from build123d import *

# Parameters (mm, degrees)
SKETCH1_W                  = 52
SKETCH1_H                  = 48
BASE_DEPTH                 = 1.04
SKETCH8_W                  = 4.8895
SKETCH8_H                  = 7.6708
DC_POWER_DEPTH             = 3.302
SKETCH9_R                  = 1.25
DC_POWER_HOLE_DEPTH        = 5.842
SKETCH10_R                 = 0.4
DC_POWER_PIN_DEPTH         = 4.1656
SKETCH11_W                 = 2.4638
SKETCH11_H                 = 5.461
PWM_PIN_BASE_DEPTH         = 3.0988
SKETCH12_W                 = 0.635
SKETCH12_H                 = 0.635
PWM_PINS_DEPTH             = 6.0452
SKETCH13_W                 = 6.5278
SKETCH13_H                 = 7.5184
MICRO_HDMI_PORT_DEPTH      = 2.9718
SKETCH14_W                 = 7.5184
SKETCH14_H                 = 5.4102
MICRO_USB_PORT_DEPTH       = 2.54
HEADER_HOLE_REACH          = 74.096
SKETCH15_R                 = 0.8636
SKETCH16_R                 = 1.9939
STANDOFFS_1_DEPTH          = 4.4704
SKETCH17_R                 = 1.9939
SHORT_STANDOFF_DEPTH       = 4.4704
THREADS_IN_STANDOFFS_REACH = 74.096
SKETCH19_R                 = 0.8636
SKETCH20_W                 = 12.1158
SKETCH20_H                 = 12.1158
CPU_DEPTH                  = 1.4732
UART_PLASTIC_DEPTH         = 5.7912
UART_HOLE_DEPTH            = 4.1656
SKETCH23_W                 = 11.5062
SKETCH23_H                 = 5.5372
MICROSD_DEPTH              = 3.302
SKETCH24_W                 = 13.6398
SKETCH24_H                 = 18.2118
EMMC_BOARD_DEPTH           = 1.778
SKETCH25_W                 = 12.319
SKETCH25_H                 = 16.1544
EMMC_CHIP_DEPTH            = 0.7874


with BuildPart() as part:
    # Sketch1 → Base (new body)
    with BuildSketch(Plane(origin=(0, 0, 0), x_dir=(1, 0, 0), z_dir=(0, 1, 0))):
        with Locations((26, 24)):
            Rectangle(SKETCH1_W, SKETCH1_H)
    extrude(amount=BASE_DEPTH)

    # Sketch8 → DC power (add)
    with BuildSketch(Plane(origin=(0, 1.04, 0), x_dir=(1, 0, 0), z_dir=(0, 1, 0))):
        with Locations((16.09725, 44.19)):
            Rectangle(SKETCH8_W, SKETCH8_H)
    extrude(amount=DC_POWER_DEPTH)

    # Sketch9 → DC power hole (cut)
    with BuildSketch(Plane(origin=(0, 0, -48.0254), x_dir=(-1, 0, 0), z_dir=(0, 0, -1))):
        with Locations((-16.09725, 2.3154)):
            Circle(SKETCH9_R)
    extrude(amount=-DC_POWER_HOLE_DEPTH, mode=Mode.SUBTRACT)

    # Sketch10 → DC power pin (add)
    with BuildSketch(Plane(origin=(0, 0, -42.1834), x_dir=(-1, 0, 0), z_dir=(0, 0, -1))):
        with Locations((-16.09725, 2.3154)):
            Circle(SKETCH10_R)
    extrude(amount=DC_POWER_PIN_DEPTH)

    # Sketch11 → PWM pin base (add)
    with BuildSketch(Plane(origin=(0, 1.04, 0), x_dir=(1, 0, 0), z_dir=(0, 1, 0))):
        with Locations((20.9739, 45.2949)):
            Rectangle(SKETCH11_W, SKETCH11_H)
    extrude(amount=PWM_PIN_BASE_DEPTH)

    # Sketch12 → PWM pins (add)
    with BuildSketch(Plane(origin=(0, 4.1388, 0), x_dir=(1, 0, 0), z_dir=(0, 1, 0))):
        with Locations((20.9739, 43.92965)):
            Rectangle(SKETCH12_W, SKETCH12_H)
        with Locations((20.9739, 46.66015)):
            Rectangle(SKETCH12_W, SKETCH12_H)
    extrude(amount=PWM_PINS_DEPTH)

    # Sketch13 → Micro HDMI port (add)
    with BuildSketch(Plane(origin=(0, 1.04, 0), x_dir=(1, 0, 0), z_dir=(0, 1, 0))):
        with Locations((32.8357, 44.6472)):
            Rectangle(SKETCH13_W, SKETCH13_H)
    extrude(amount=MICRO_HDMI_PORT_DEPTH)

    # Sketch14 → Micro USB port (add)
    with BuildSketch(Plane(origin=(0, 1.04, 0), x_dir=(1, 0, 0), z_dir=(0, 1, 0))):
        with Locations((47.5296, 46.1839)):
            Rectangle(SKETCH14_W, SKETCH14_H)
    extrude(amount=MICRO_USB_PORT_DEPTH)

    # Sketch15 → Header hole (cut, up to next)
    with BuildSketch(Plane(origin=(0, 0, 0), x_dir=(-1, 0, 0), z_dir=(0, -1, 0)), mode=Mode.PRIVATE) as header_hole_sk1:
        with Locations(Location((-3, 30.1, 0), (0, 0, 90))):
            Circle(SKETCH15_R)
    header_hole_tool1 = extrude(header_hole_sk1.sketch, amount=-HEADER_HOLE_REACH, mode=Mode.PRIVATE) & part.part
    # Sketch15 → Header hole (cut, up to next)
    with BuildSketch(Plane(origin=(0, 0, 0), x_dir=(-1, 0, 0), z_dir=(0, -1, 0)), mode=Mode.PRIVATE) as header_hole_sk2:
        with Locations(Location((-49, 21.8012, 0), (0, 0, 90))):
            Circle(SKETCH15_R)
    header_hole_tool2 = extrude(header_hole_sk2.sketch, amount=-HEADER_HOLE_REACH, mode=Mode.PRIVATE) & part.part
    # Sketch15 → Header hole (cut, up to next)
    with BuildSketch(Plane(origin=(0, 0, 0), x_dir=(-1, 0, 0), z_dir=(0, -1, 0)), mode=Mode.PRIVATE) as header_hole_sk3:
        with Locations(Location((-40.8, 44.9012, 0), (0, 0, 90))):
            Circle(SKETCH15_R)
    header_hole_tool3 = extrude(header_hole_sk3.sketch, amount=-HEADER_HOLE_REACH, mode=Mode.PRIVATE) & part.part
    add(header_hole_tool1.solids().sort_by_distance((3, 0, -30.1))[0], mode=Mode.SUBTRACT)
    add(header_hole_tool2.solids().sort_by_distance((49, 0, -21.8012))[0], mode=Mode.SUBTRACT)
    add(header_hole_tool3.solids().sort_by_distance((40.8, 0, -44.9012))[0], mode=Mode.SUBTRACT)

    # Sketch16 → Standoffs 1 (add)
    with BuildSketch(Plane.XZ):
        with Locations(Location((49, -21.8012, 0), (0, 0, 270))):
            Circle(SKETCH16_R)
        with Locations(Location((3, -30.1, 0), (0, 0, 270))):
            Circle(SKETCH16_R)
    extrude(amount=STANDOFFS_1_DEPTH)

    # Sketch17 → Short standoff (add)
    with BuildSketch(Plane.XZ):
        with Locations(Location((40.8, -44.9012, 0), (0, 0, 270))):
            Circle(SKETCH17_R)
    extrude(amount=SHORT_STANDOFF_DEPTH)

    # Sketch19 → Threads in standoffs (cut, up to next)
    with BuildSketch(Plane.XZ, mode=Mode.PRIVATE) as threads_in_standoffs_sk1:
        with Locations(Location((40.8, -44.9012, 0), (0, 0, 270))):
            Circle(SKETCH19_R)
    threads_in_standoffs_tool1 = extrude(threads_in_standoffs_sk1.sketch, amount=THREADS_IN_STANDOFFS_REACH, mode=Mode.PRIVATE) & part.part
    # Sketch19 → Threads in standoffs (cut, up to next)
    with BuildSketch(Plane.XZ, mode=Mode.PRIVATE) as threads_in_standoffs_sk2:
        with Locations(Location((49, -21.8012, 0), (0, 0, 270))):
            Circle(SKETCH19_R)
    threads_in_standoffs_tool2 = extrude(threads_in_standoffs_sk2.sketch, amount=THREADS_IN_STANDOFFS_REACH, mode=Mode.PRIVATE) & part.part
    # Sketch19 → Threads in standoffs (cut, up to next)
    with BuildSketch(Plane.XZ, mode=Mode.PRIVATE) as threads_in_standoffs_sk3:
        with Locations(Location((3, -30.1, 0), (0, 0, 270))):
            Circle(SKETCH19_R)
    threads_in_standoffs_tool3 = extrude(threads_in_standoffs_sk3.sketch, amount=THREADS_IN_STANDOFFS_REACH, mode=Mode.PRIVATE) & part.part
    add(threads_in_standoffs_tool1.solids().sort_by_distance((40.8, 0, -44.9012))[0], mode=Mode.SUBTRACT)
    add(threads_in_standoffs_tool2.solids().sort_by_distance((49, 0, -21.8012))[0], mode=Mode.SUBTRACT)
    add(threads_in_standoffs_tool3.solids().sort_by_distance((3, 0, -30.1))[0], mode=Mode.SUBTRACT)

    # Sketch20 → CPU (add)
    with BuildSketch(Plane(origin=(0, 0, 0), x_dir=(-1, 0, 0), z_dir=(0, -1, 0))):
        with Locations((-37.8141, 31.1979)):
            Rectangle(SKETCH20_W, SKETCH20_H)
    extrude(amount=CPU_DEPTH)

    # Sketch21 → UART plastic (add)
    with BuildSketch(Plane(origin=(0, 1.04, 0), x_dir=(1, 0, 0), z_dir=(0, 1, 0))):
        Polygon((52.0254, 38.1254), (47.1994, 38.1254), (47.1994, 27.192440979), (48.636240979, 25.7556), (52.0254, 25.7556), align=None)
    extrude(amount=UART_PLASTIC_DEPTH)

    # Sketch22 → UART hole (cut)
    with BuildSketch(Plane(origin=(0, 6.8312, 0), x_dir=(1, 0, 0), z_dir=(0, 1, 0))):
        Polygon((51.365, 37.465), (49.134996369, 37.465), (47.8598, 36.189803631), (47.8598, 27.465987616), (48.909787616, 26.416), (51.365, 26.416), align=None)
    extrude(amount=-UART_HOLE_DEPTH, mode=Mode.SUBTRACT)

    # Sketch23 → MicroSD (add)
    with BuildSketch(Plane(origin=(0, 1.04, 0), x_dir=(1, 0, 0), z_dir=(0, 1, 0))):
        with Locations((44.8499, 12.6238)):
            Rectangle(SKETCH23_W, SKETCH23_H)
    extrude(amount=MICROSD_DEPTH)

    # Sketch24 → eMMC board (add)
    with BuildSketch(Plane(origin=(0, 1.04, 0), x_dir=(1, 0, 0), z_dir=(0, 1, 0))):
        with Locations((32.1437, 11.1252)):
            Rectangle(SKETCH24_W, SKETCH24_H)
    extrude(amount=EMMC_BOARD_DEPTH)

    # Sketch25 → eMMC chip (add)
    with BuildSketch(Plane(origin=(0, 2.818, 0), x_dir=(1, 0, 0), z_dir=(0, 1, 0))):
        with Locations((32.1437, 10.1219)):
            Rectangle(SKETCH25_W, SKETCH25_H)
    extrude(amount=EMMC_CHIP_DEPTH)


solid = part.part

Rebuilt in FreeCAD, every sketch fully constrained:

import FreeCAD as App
import Part
import Sketcher
Q = App.Units.Quantity


def add_polygon(sketch, points):
    """Adds a closed chain of lines whose ends are joined by coincident constraints."""
    first, n = sketch.GeometryCount, len(points)
    for a, b in zip(points, points[1:] + points[:1]):
        sketch.addGeometry(Part.LineSegment(App.Vector(*a, 0), App.Vector(*b, 0)), False)
    for i in range(n):
        sketch.addConstraint(Sketcher.Constraint("Coincident", first + i, 2, first + (i + 1) % n, 1))

doc = App.newDocument("Part")
body = doc.addObject("PartDesign::Body", "Body")

# Sketch on XZ plane
sketch1 = body.newObject("Sketcher::SketchObject", "Sketch")
sketch1.AttachmentSupport = (doc.getObject("XZ_Plane"), [""])
sketch1.MapMode = "FlatFace"
add_polygon(sketch1, [(0, -48), (0, 0), (52, 0), (52, -48)])  # lines 0-3
sketch1.addConstraint([
    Sketcher.Constraint("Vertical", 0),
    Sketcher.Constraint("Horizontal", 1),
    Sketcher.Constraint("Vertical", 2),
    Sketcher.Constraint("Horizontal", 3),
    Sketcher.Constraint("Coincident", 0, 2, -1, 1),
    Sketcher.Constraint("DistanceX", 1, 1, 1, 2, 52.0),
    Sketcher.Constraint("DistanceY", 0, 1, 0, 2, 48.0),
])
pad1 = body.newObject("PartDesign::Pad", "Pad")
pad1.Profile = sketch1
pad1.Length = 1.04
pad1.Reversed = True

# Sketch on XZ plane
sketch2 = body.newObject("Sketcher::SketchObject", "Sketch001")
sketch2.AttachmentSupport = (doc.getObject("XZ_Plane"), [""])
sketch2.MapMode = "FlatFace"
sketch2.AttachmentOffset = App.Placement(App.Vector(0, 0, -1.04), App.Rotation())
add_polygon(sketch2, [(13.6525, -48.0254), (13.6525, -40.3546), (18.542, -40.3546), (18.542, -48.0254)])  # lines 0-3
sketch2.addConstraint([
    Sketcher.Constraint("Vertical", 0),
    Sketcher.Constraint("Horizontal", 1),
    Sketcher.Constraint("Vertical", 2),
    Sketcher.Constraint("Horizontal", 3),
    Sketcher.Constraint("DistanceY", 0, 1, 0, 2, Q("0.302 in")),
    Sketcher.Constraint("DistanceX", -1, 1, 1, 2, Q("0.73 in")),
    Sketcher.Constraint("DistanceX", 1, 1, 1, 2, Q("0.1925 in")),
    Sketcher.Constraint("DistanceY", 0, 2, -1, 1, 40.3546),
])
pad2 = body.newObject("PartDesign::Pad", "Pad001")
pad2.Profile = sketch2
pad2.Length = Q("0.13 in")
pad2.Reversed = True

# Sketch on XY plane
sketch3 = body.newObject("Sketcher::SketchObject", "Sketch002")
sketch3.AttachmentSupport = (doc.getObject("XY_Plane"), [""])
sketch3.MapMode = "FlatFace"
sketch3.AttachmentOffset = App.Placement(App.Vector(0, 0, -48.0254), App.Rotation())
sketch3.addGeometry(Part.Circle(App.Vector(16.09725, 2.3154, 0), App.Vector(0, 0, 1), 1.25), False)
sketch3.addConstraint([
    Sketcher.Constraint("Diameter", 0, 2.5),
    Sketcher.Constraint("DistanceY", -1, 1, 0, 3, 2.3154),
    Sketcher.Constraint("DistanceX", -1, 1, 0, 3, 16.09725),
])
pocket1 = body.newObject("PartDesign::Pocket", "Pocket")
pocket1.Profile = sketch3
pocket1.Length = Q("0.23 in")
pocket1.Reversed = True

# Sketch on XY plane
sketch4 = body.newObject("Sketcher::SketchObject", "Sketch003")
sketch4.AttachmentSupport = (doc.getObject("XY_Plane"), [""])
sketch4.MapMode = "FlatFace"
sketch4.AttachmentOffset = App.Placement(App.Vector(0, 0, -42.1834), App.Rotation())
sketch4.addGeometry(Part.Circle(App.Vector(16.09725, 2.3154, 0), App.Vector(0, 0, 1), 0.4), False)
sketch4.addConstraint([
    Sketcher.Constraint("Diameter", 0, 0.8),
    Sketcher.Constraint("DistanceY", -1, 1, 0, 3, 2.3154),
    Sketcher.Constraint("DistanceX", -1, 1, 0, 3, 16.09725),
])
pad3 = body.newObject("PartDesign::Pad", "Pad002")
pad3.Profile = sketch4
pad3.Length = Q("0.164 in")
pad3.Reversed = True

# Sketch on XZ plane
sketch5 = body.newObject("Sketcher::SketchObject", "Sketch004")
sketch5.AttachmentSupport = (doc.getObject("XZ_Plane"), [""])
sketch5.MapMode = "FlatFace"
sketch5.AttachmentOffset = App.Placement(App.Vector(0, 0, -1.04), App.Rotation())
add_polygon(sketch5, [(19.742, -48.0254), (19.742, -42.5644), (22.2058, -42.5644), (22.2058, -48.0254)])  # lines 0-3
sketch5.addConstraint([
    Sketcher.Constraint("Vertical", 0),
    Sketcher.Constraint("Horizontal", 1),
    Sketcher.Constraint("Vertical", 2),
    Sketcher.Constraint("Horizontal", 3),
    Sketcher.Constraint("DistanceX", 1, 1, 1, 2, Q("0.097 in")),
    Sketcher.Constraint("DistanceY", 0, 1, 0, 2, Q("0.215 in")),
    Sketcher.Constraint("DistanceX", -1, 1, 0, 2, 19.742),
    Sketcher.Constraint("DistanceY", 0, 2, -1, 1, 42.5644),
])
pad4 = body.newObject("PartDesign::Pad", "Pad003")
pad4.Profile = sketch5
pad4.Length = Q("0.122 in")
pad4.Reversed = True

# Sketch on XZ plane
sketch6 = body.newObject("Sketcher::SketchObject", "Sketch005")
sketch6.AttachmentSupport = (doc.getObject("XZ_Plane"), [""])
sketch6.MapMode = "FlatFace"
sketch6.AttachmentOffset = App.Placement(App.Vector(0, 0, -4.1388), App.Rotation())
add_polygon(sketch6, [(20.6564, -44.24715), (20.6564, -43.61215), (21.2914, -43.61215), (21.2914, -44.24715)])  # lines 0-3
add_polygon(sketch6, [(20.6564, -46.97765), (20.6564, -46.34265), (21.2914, -46.34265), (21.2914, -46.97765)])  # lines 4-7
sketch6.addConstraint([
    Sketcher.Constraint("Vertical", 0),
    Sketcher.Constraint("Horizontal", 1),
    Sketcher.Constraint("Vertical", 2),
    Sketcher.Constraint("Horizontal", 3),
    Sketcher.Constraint("Vertical", 4),
    Sketcher.Constraint("Horizontal", 5),
    Sketcher.Constraint("Vertical", 6),
    Sketcher.Constraint("Horizontal", 7),
    Sketcher.Constraint("Vertical", 3, 2, 4, 2),
    Sketcher.Constraint("Vertical", 2, 2, 5, 2),
    Sketcher.Constraint("Equal", 7, 0),
    Sketcher.Constraint("Equal", 2, 4),
    Sketcher.Constraint("DistanceX", 1, 1, 1, 2, Q("0.025 in")),
    Sketcher.Constraint("DistanceY", 4, 2, 3, 2, Q("0.0825 in")),
    Sketcher.Constraint("DistanceX", -1, 1, 0, 2, 20.6564),
    Sketcher.Constraint("DistanceY", 0, 2, -1, 1, 43.61215),
])
pad5 = body.newObject("PartDesign::Pad", "Pad004")
pad5.Profile = sketch6
pad5.Length = Q("0.238 in")
pad5.Reversed = True

# Sketch on XZ plane
sketch7 = body.newObject("Sketcher::SketchObject", "Sketch006")
sketch7.AttachmentSupport = (doc.getObject("XZ_Plane"), [""])
sketch7.MapMode = "FlatFace"
sketch7.AttachmentOffset = App.Placement(App.Vector(0, 0, -1.04), App.Rotation())
add_polygon(sketch7, [(29.5718, -48.4064), (29.5718, -40.888), (36.0996, -40.888), (36.0996, -48.4064)])  # lines 0-3
sketch7.addConstraint([
    Sketcher.Constraint("Vertical", 0),
    Sketcher.Constraint("Horizontal", 1),
    Sketcher.Constraint("Vertical", 2),
    Sketcher.Constraint("Horizontal", 3),
    Sketcher.Constraint("DistanceX", 1, 1, 1, 2, Q("0.257 in")),
    Sketcher.Constraint("DistanceY", 0, 1, 0, 2, Q("0.296 in")),
    Sketcher.Constraint("DistanceX", -1, 1, 0, 2, 29.5718),
    Sketcher.Constraint("DistanceY", 0, 2, -1, 1, 40.888),
])
pad6 = body.newObject("PartDesign::Pad", "Pad005")
pad6.Profile = sketch7
pad6.Length = Q("0.117 in")
pad6.Reversed = True

# Sketch on XZ plane
sketch8 = body.newObject("Sketcher::SketchObject", "Sketch007")
sketch8.AttachmentSupport = (doc.getObject("XZ_Plane"), [""])
sketch8.MapMode = "FlatFace"
sketch8.AttachmentOffset = App.Placement(App.Vector(0, 0, -1.04), App.Rotation())
add_polygon(sketch8, [(43.7704, -48.889), (43.7704, -43.4788), (51.2888, -43.4788), (51.2888, -48.889)])  # lines 0-3
sketch8.addConstraint([
    Sketcher.Constraint("Vertical", 0),
    Sketcher.Constraint("Horizontal", 1),
    Sketcher.Constraint("Vertical", 2),
    Sketcher.Constraint("Horizontal", 3),
    Sketcher.Constraint("DistanceX", 1, 1, 1, 2, Q("0.296 in")),
    Sketcher.Constraint("DistanceY", 0, 1, 0, 2, Q("0.213 in")),
    Sketcher.Constraint("DistanceX", -1, 1, 0, 2, 43.7704),
    Sketcher.Constraint("DistanceY", 0, 2, -1, 1, 43.4788),
])
pad7 = body.newObject("PartDesign::Pad", "Pad006")
pad7.Profile = sketch8
pad7.Length = Q("0.1 in")
pad7.Reversed = True

# Sketch on XZ plane
sketch9 = body.newObject("Sketcher::SketchObject", "Sketch008")
sketch9.AttachmentSupport = (doc.getObject("XZ_Plane"), [""])
sketch9.MapMode = "FlatFace"
sketch9.addGeometry(Part.Circle(App.Vector(3, -30.1, 0), App.Vector(0, 0, 1), 0.8636), False)
sketch9.addConstraint([
    Sketcher.Constraint("Diameter", 0, Q("0.068 in")),
    Sketcher.Constraint("DistanceX", -1, 1, 0, 3, 3.0),
    Sketcher.Constraint("DistanceY", 0, 3, -1, 1, 30.1),
])
pocket2 = body.newObject("PartDesign::Pocket", "Pocket001")
pocket2.Profile = sketch9
pocket2.Type = "UpToFirst"

# Sketch on XZ plane
sketch10 = body.newObject("Sketcher::SketchObject", "Sketch009")
sketch10.AttachmentSupport = (doc.getObject("XZ_Plane"), [""])
sketch10.MapMode = "FlatFace"
sketch10.addGeometry(Part.Circle(App.Vector(49, -21.8012, 0), App.Vector(0, 0, 1), 0.8636), False)
sketch10.addConstraint([
    Sketcher.Constraint("Diameter", 0, Q("0.068 in")),
    Sketcher.Constraint("DistanceX", -1, 1, 0, 3, 49.0),
    Sketcher.Constraint("DistanceY", 0, 3, -1, 1, 21.8012),
])
pocket3 = body.newObject("PartDesign::Pocket", "Pocket002")
pocket3.Profile = sketch10
pocket3.Type = "UpToFirst"

# Sketch on XZ plane
sketch11 = body.newObject("Sketcher::SketchObject", "Sketch010")
sketch11.AttachmentSupport = (doc.getObject("XZ_Plane"), [""])
sketch11.MapMode = "FlatFace"
sketch11.addGeometry(Part.Circle(App.Vector(40.8, -44.9012, 0), App.Vector(0, 0, 1), 0.8636), False)
sketch11.addConstraint([
    Sketcher.Constraint("Diameter", 0, Q("0.068 in")),
    Sketcher.Constraint("DistanceX", -1, 1, 0, 3, 40.8),
    Sketcher.Constraint("DistanceY", 0, 3, -1, 1, 44.9012),
])
pocket4 = body.newObject("PartDesign::Pocket", "Pocket003")
pocket4.Profile = sketch11
pocket4.Type = "UpToFirst"

# Sketch on XZ plane
sketch12 = body.newObject("Sketcher::SketchObject", "Sketch011")
sketch12.AttachmentSupport = (doc.getObject("XZ_Plane"), [""])
sketch12.MapMode = "FlatFace"
sketch12.addGeometry([
    Part.Circle(App.Vector(49, -21.8012, 0), App.Vector(0, 0, 1), 1.9939),
    Part.Circle(App.Vector(3, -30.1, 0), App.Vector(0, 0, 1), 1.9939),
], False)
sketch12.addConstraint([
    Sketcher.Constraint("Equal", 0, 1),
    Sketcher.Constraint("Diameter", 0, Q("0.157 in")),
    Sketcher.Constraint("DistanceX", -1, 1, 0, 3, 49.0),
    Sketcher.Constraint("DistanceY", 0, 3, -1, 1, 21.8012),
    Sketcher.Constraint("DistanceX", -1, 1, 1, 3, 3.0),
    Sketcher.Constraint("DistanceY", 1, 3, -1, 1, 30.1),
])
pad8 = body.newObject("PartDesign::Pad", "Pad007")
pad8.Profile = sketch12
pad8.Length = Q("0.176 in")

# Sketch on XZ plane
sketch13 = body.newObject("Sketcher::SketchObject", "Sketch012")
sketch13.AttachmentSupport = (doc.getObject("XZ_Plane"), [""])
sketch13.MapMode = "FlatFace"
sketch13.addGeometry(Part.Circle(App.Vector(40.8, -44.9012, 0), App.Vector(0, 0, 1), 1.9939), False)
sketch13.addConstraint([
    Sketcher.Constraint("Diameter", 0, Q("0.157 in")),
    Sketcher.Constraint("DistanceX", -1, 1, 0, 3, 40.8),
    Sketcher.Constraint("DistanceY", 0, 3, -1, 1, 44.9012),
])
pad9 = body.newObject("PartDesign::Pad", "Pad008")
pad9.Profile = sketch13
pad9.Length = Q("0.176 in")

# Sketch on XZ plane
sketch14 = body.newObject("Sketcher::SketchObject", "Sketch013")
sketch14.AttachmentSupport = (doc.getObject("XZ_Plane"), [""])
sketch14.MapMode = "FlatFace"
sketch14.addGeometry(Part.Circle(App.Vector(40.8, -44.9012, 0), App.Vector(0, 0, 1), 0.8636), False)
sketch14.addConstraint([
    Sketcher.Constraint("Diameter", 0, Q("0.068 in")),
    Sketcher.Constraint("DistanceX", -1, 1, 0, 3, 40.8),
    Sketcher.Constraint("DistanceY", 0, 3, -1, 1, 44.9012),
])
pocket5 = body.newObject("PartDesign::Pocket", "Pocket004")
pocket5.Profile = sketch14
pocket5.Type = "UpToFirst"
pocket5.Reversed = True

# Sketch on XZ plane
sketch15 = body.newObject("Sketcher::SketchObject", "Sketch014")
sketch15.AttachmentSupport = (doc.getObject("XZ_Plane"), [""])
sketch15.MapMode = "FlatFace"
sketch15.addGeometry(Part.Circle(App.Vector(49, -21.8012, 0), App.Vector(0, 0, 1), 0.8636), False)
sketch15.addConstraint([
    Sketcher.Constraint("Diameter", 0, Q("0.068 in")),
    Sketcher.Constraint("DistanceX", -1, 1, 0, 3, 49.0),
    Sketcher.Constraint("DistanceY", 0, 3, -1, 1, 21.8012),
])
pocket6 = body.newObject("PartDesign::Pocket", "Pocket005")
pocket6.Profile = sketch15
pocket6.Type = "UpToFirst"
pocket6.Reversed = True

# Sketch on XZ plane
sketch16 = body.newObject("Sketcher::SketchObject", "Sketch015")
sketch16.AttachmentSupport = (doc.getObject("XZ_Plane"), [""])
sketch16.MapMode = "FlatFace"
sketch16.addGeometry(Part.Circle(App.Vector(3, -30.1, 0), App.Vector(0, 0, 1), 0.8636), False)
sketch16.addConstraint([
    Sketcher.Constraint("Diameter", 0, Q("0.068 in")),
    Sketcher.Constraint("DistanceX", -1, 1, 0, 3, 3.0),
    Sketcher.Constraint("DistanceY", 0, 3, -1, 1, 30.1),
])
pocket7 = body.newObject("PartDesign::Pocket", "Pocket006")
pocket7.Profile = sketch16
pocket7.Type = "UpToFirst"
pocket7.Reversed = True

# Sketch on XZ plane
sketch17 = body.newObject("Sketcher::SketchObject", "Sketch016")
sketch17.AttachmentSupport = (doc.getObject("XZ_Plane"), [""])
sketch17.MapMode = "FlatFace"
add_polygon(sketch17, [(43.872, -37.2558), (43.872, -25.14), (31.7562, -25.14), (31.7562, -37.2558)])  # lines 0-3
sketch17.addConstraint([
    Sketcher.Constraint("Vertical", 0),
    Sketcher.Constraint("Horizontal", 1),
    Sketcher.Constraint("Vertical", 2),
    Sketcher.Constraint("Horizontal", 3),
    Sketcher.Constraint("Equal", 3, 0),
    Sketcher.Constraint("DistanceX", 1, 2, 1, 1, Q("0.477 in")),
    Sketcher.Constraint("DistanceX", -1, 1, 0, 2, 43.872),
    Sketcher.Constraint("DistanceY", 0, 2, -1, 1, 25.14),
])
pad10 = body.newObject("PartDesign::Pad", "Pad009")
pad10.Profile = sketch17
pad10.Length = Q("0.058 in")

# Sketch on XZ plane
sketch18 = body.newObject("Sketcher::SketchObject", "Sketch017")
sketch18.AttachmentSupport = (doc.getObject("XZ_Plane"), [""])
sketch18.MapMode = "FlatFace"
sketch18.AttachmentOffset = App.Placement(App.Vector(0, 0, -1.04), App.Rotation())
add_polygon(sketch18, [(52.0254, -38.1254), (47.1994, -38.1254), (47.1994, -27.192441), (48.636241, -25.7556), (52.0254, -25.7556)])  # lines 0-4
sketch18.addConstraint([
    Sketcher.Constraint("Horizontal", 0),
    Sketcher.Constraint("Vertical", 1),
    Sketcher.Constraint("Horizontal", 3),
    Sketcher.Constraint("Vertical", 4),
    Sketcher.Constraint("Angle", 2, Q("45 deg")),
    Sketcher.Constraint("DistanceX", 0, 2, 0, 1, Q("0.19 in")),
    Sketcher.Constraint("Distance", 2, Q("0.08 in")),
    Sketcher.Constraint("DistanceY", 4, 2, 4, 1, Q("0.487 in")),
    Sketcher.Constraint("DistanceY", 0, 2, -1, 1, Q("1.501 in")),
    Sketcher.Constraint("DistanceX", -1, 1, 0, 2, 47.1994),
])
pad11 = body.newObject("PartDesign::Pad", "Pad010")
pad11.Profile = sketch18
pad11.Length = Q("0.228 in")
pad11.Reversed = True

# Sketch on XZ plane
sketch19 = body.newObject("Sketcher::SketchObject", "Sketch018")
sketch19.AttachmentSupport = (doc.getObject("XZ_Plane"), [""])
sketch19.MapMode = "FlatFace"
sketch19.AttachmentOffset = App.Placement(App.Vector(0, 0, -6.8312), App.Rotation())
add_polygon(sketch19, [(51.365, -37.465), (49.134996, -37.465), (47.8598, -36.189804), (47.8598, -27.465988), (48.909788, -26.416), (51.365, -26.416)])  # lines 0-5
sketch19.addConstraint([
    Sketcher.Constraint("Horizontal", 0),
    Sketcher.Constraint("Vertical", 2),
    Sketcher.Constraint("Horizontal", 4),
    Sketcher.Constraint("Vertical", 5),
    Sketcher.Constraint("Perpendicular", 1, 3),
    Sketcher.Constraint("Angle", 1, Q("135 deg")),
    Sketcher.Constraint("DistanceY", 5, 2, 5, 1, Q("0.435 in")),
    Sketcher.Constraint("DistanceY", 3, 2, -1, 1, Q("1.04 in")),
    Sketcher.Constraint("Distance", 1, Q("0.071 in")),
    Sketcher.Constraint("DistanceX", 2, 2, 4, 2, Q("0.138 in")),
    Sketcher.Constraint("DistanceX", -1, 1, 1, 2, 47.8598),
    Sketcher.Constraint("DistanceX", 4, 1, 4, 2, 2.455212),
])
pocket8 = body.newObject("PartDesign::Pocket", "Pocket007")
pocket8.Profile = sketch19
pocket8.Length = Q("0.164 in")
pocket8.Reversed = True

# Sketch on XZ plane
sketch20 = body.newObject("Sketcher::SketchObject", "Sketch019")
sketch20.AttachmentSupport = (doc.getObject("XZ_Plane"), [""])
sketch20.MapMode = "FlatFace"
sketch20.AttachmentOffset = App.Placement(App.Vector(0, 0, -1.04), App.Rotation())
add_polygon(sketch20, [(39.0968, -15.3924), (39.0968, -9.8552), (50.603, -9.8552), (50.603, -15.3924)])  # lines 0-3
sketch20.addConstraint([
    Sketcher.Constraint("Vertical", 0),
    Sketcher.Constraint("Horizontal", 1),
    Sketcher.Constraint("Vertical", 2),
    Sketcher.Constraint("Horizontal", 3),
    Sketcher.Constraint("DistanceX", 1, 1, 1, 2, Q("0.453 in")),
    Sketcher.Constraint("DistanceY", 0, 1, 0, 2, Q("0.218 in")),
    Sketcher.Constraint("DistanceY", 0, 2, -1, 1, Q("0.388 in")),
    Sketcher.Constraint("DistanceX", -1, 1, 0, 2, 39.0968),
])
pad12 = body.newObject("PartDesign::Pad", "Pad011")
pad12.Profile = sketch20
pad12.Length = Q("0.13 in")
pad12.Reversed = True

# Sketch on XZ plane
sketch21 = body.newObject("Sketcher::SketchObject", "Sketch020")
sketch21.AttachmentSupport = (doc.getObject("XZ_Plane"), [""])
sketch21.MapMode = "FlatFace"
sketch21.AttachmentOffset = App.Placement(App.Vector(0, 0, -1.04), App.Rotation())
add_polygon(sketch21, [(25.3238, -20.2311), (25.3238, -2.0193), (38.9636, -2.0193), (38.9636, -20.2311)])  # lines 0-3
sketch21.addConstraint([
    Sketcher.Constraint("Vertical", 0),
    Sketcher.Constraint("Horizontal", 1),
    Sketcher.Constraint("Vertical", 2),
    Sketcher.Constraint("Horizontal", 3),
    Sketcher.Constraint("DistanceX", 1, 1, 1, 2, Q("0.537 in")),
    Sketcher.Constraint("DistanceY", 0, 1, 0, 2, Q("0.717 in")),
    Sketcher.Constraint("DistanceX", -1, 1, 0, 2, Q("0.997 in")),
    Sketcher.Constraint("DistanceY", 0, 2, -1, 1, Q("0.0795 in")),
])
pad13 = body.newObject("PartDesign::Pad", "Pad012")
pad13.Profile = sketch21
pad13.Length = Q("0.07 in")
pad13.Reversed = True

# Sketch on XZ plane
sketch22 = body.newObject("Sketcher::SketchObject", "Sketch021")
sketch22.AttachmentSupport = (doc.getObject("XZ_Plane"), [""])
sketch22.MapMode = "FlatFace"
sketch22.AttachmentOffset = App.Placement(App.Vector(0, 0, -2.818), App.Rotation())
add_polygon(sketch22, [(25.9842, -18.1991), (25.9842, -2.0447), (38.3032, -2.0447), (38.3032, -18.1991)])  # lines 0-3
sketch22.addConstraint([
    Sketcher.Constraint("Vertical", 0),
    Sketcher.Constraint("Horizontal", 1),
    Sketcher.Constraint("Vertical", 2),
    Sketcher.Constraint("Horizontal", 3),
    Sketcher.Constraint("DistanceX", 1, 1, 1, 2, Q("0.485 in")),
    Sketcher.Constraint("DistanceY", 0, 1, 0, 2, Q("0.636 in")),
    Sketcher.Constraint("DistanceX", -1, 1, 0, 2, Q("1.023 in")),
    Sketcher.Constraint("DistanceY", 0, 2, -1, 1, Q("0.0805 in")),
])
pad14 = body.newObject("PartDesign::Pad", "Pad013")
pad14.Profile = sketch22
pad14.Length = Q("0.031 in")
pad14.Reversed = True

doc.recompute()
